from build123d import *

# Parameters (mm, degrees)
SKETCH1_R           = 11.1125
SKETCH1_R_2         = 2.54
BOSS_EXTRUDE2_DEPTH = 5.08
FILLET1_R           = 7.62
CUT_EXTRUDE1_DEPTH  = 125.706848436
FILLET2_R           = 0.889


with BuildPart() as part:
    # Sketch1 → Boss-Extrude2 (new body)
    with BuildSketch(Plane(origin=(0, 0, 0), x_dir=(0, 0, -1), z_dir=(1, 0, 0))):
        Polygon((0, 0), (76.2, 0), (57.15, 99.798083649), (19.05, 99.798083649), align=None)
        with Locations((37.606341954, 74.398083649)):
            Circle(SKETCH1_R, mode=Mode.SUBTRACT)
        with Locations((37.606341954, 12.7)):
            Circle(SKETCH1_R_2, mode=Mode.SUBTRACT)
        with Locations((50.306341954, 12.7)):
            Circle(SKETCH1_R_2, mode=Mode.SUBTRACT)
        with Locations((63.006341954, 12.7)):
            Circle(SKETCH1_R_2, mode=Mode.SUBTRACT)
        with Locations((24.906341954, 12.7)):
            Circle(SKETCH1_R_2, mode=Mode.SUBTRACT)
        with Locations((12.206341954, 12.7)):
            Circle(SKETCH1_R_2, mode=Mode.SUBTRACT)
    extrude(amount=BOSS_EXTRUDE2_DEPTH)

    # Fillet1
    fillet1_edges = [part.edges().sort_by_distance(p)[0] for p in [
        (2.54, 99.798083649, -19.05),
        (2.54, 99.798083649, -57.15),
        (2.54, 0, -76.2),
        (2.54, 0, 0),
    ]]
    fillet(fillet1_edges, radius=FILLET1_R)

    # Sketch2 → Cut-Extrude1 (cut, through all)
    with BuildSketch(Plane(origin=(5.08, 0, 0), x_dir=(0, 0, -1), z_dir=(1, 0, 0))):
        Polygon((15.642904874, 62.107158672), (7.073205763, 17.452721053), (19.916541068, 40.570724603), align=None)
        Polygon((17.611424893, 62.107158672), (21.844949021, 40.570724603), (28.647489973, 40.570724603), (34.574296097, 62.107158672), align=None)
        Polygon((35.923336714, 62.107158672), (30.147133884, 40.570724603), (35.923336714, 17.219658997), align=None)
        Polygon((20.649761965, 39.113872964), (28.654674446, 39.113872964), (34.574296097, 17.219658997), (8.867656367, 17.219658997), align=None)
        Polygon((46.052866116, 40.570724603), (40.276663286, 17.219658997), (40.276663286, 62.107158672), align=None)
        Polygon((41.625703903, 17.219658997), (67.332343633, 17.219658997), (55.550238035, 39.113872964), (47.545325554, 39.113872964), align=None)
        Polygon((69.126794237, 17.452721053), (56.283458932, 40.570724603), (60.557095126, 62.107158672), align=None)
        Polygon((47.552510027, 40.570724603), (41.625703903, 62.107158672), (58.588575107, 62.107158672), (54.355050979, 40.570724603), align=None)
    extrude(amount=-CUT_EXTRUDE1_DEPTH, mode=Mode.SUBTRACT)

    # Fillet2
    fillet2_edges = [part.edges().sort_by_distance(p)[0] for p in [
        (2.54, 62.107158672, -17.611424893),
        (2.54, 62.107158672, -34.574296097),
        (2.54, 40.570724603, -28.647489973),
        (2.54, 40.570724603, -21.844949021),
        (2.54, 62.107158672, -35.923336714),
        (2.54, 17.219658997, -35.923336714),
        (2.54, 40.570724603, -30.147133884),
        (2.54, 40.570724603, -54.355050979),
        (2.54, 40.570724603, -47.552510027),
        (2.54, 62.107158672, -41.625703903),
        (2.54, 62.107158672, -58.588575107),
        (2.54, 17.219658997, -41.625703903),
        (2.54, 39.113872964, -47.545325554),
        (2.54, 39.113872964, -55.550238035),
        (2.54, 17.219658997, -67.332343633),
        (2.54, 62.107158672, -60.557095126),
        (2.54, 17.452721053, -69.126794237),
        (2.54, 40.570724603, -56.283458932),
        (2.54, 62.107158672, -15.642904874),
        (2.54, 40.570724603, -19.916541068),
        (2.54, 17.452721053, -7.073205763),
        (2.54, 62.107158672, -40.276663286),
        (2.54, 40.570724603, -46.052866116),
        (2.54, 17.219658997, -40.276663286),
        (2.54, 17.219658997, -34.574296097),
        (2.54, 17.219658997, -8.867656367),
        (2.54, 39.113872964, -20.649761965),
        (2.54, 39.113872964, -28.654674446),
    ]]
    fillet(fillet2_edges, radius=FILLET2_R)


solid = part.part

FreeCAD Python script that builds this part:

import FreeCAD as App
import Part
import Sketcher
from FreeCAD import Vector
Q = App.Units.Quantity


def edges_at(feature, points):
    """Names of the edges that pass closest to the given points."""
    edges = feature.Shape.Edges
    near = lambda p: min(range(len(edges)), key=lambda i: edges[i].distToShape(Part.Vertex(*p))[0])
    return sorted({f"Edge{near(p) + 1}" for p in points})


def add_polygon(sketch, points):
    """Adds a closed chain of lines whose ends are joined by coincident constraints."""
    first, n = sketch.GeometryCount, len(points)
    for a, b in zip(points, points[1:] + points[:1]):
        sketch.addGeometry(Part.LineSegment(App.Vector(*a, 0), App.Vector(*b, 0)), False)
    for i in range(n):
        sketch.addConstraint(Sketcher.Constraint("Coincident", first + i, 2, first + (i + 1) % n, 1))

doc = App.newDocument("Part")
body = doc.addObject("PartDesign::Body", "Body")

# Sketch on YZ plane
sketch1 = doc.addObject("Sketcher::SketchObject", "Sketch")
body.addObject(sketch1)
sketch1.AttachmentSupport = (doc.YZ_Plane, [""])
sketch1.MapMode = "FlatFace"
add_polygon(sketch1, [(0, 0), (0, -76.2), (99.8, -57.1), (99.8, -19.1)])  # lines 0-3
sketch1.addGeometry(Part.Circle(Vector(12.7, -12.2, 0), Vector(0, 0, 1), 2.5), False)  # 4
sketch1.addGeometry(Part.Circle(Vector(12.7, -24.9, 0), Vector(0, 0, 1), 2.5), False)  # 5
sketch1.addGeometry(Part.Circle(Vector(12.7, -37.6, 0), Vector(0, 0, 1), 2.5), False)  # 6
sketch1.addGeometry(Part.Circle(Vector(12.7, -50.3, 0), Vector(0, 0, 1), 2.5), False)  # 7
sketch1.addGeometry(Part.Circle(Vector(12.7, -63, 0), Vector(0, 0, 1), 2.5), False)  # 8
sketch1.addGeometry(Part.Circle(Vector(74.4, -37.6, 0), Vector(0, 0, 1), 11.1), False)  # 9
sketch1.addConstraint([
    Sketcher.Constraint("Vertical", 0),
    Sketcher.Constraint("Vertical", 2),
    Sketcher.Constraint("Coincident", 3, 2, -1, 1),
    Sketcher.Constraint("Equal", 4, 5),
    Sketcher.Constraint("Equal", 5, 6),
    Sketcher.Constraint("Equal", 6, 7),
    Sketcher.Constraint("Equal", 7, 8),
    Sketcher.Constraint("Horizontal", 6, 3, 9, 3),
    Sketcher.Constraint("Vertical", 4, 3, 5, 3),
    Sketcher.Constraint("Vertical", 5, 3, 6, 3),
    Sketcher.Constraint("Vertical", 6, 3, 7, 3),
    Sketcher.Constraint("Vertical", 7, 3, 8, 3),
    Sketcher.Constraint("Equal", 1, 3),
    Sketcher.Constraint("Diameter", 4, Q("0.2 in")),
    Sketcher.Constraint("DistanceY", 0, 2, 0, 1, Q("3 in")),
    Sketcher.Constraint("Distance", 1, Q("4 in")),
    Sketcher.Constraint("Diameter", 9, Q("0.875 in")),
    Sketcher.Constraint("DistanceY", 2, 1, 2, 2, Q("1.5 in")),
    Sketcher.Constraint("DistanceY", 6, 3, 4, 3, Q("1 in")),
    Sketcher.Constraint("DistanceY", 7, 3, 5, 3, Q("1 in")),
    Sketcher.Constraint("DistanceY", 8, 3, 6, 3, Q("1 in")),
    Sketcher.Constraint("DistanceX", 9, 3, 1, 2, Q("1 in")),
    Sketcher.Constraint("DistanceX", -1, 1, 4, 3, Q("0.5 in")),
    Sketcher.Constraint("DistanceY", 5, 3, 4, 3, Q("0.5 in")),
    Sketcher.Constraint("DistanceY", 4, 3, -1, 1, Q("12.206342 mm")),
])
pad1 = doc.addObject("PartDesign::Pad", "Pad")
body.addObject(pad1)
pad1.Profile = sketch1
pad1.Length = Q("0.2 in")
doc.recompute()

fillet = doc.addObject("PartDesign::Fillet", "Fillet")
body.addObject(fillet)
fillet.Base = (pad1, edges_at(pad1, [
    (2.54, 99.798, -19.05),
    (2.54, 99.798, -57.15),
    (2.54, 0, -76.2),
    (2.54, 0, 0),
]))
fillet.Radius = Q("0.3 in")

# Sketch on YZ plane
sketch2 = doc.addObject("Sketcher::SketchObject", "Sketch001")
body.addObject(sketch2)
sketch2.AttachmentSupport = (doc.YZ_Plane, [""])
sketch2.MapMode = "FlatFace"
sketch2.AttachmentOffset = App.Placement(Vector(0, 0, 0.2 * 25.4), App.Rotation())
add_polygon(sketch2, [(62, -16), (17, -7), (41, -20)])  # lines 0-2
add_polygon(sketch2, [(62, -18), (41, -22), (41, -29), (62, -35)])  # lines 3-6
add_polygon(sketch2, [(62, -36), (41, -30), (17, -36)])  # lines 7-9
add_polygon(sketch2, [(39, -29), (39, -21), (17, -9), (17, -35)])  # lines 10-13
add_polygon(sketch2, [(17, -40), (41, -46), (62, -40)])  # lines 14-16
add_polygon(sketch2, [(17, -42), (17, -67), (39, -56), (39, -48)])  # lines 17-20
add_polygon(sketch2, [(41, -56), (17, -69), (62, -61)])  # lines 21-23
add_polygon(sketch2, [(62, -42), (41, -48), (41, -54), (62, -59)])  # lines 24-27
sketch2.addConstraint([
    Sketcher.Constraint("Vertical", 4),
    Sketcher.Constraint("Vertical", 6),
    Sketcher.Constraint("Horizontal", 9),
    Sketcher.Constraint("Vertical", 10),
    Sketcher.Constraint("Vertical", 12),
    Sketcher.Constraint("Horizontal", 16),
    Sketcher.Constraint("Vertical", 17),
    Sketcher.Constraint("Vertical", 19),
    Sketcher.Constraint("Vertical", 25),
    Sketcher.Constraint("Vertical", 27),
    Sketcher.Constraint("Horizontal", 5, 2, 12, 2),
    Sketcher.Constraint("Horizontal", 20, 2, 27, 2),
    Sketcher.Constraint("Vertical", 1, 2, 3, 2),
    Sketcher.Constraint("Vertical", 2, 2, 5, 2),
    Sketcher.Constraint("Vertical", 4, 2, 7, 2),
    Sketcher.Constraint("Vertical", 6, 2, 9, 2),
    Sketcher.Constraint("Vertical", 8, 2, 11, 2),
    Sketcher.Constraint("Vertical", 7, 2, 14, 2),
    Sketcher.Constraint("Vertical", 9, 2, 15, 2),
    Sketcher.Constraint("Vertical", 12, 2, 16, 2),
    Sketcher.Constraint("Vertical", 16, 2, 17, 2),
    Sketcher.Constraint("Vertical", 13, 2, 18, 2),
    Sketcher.Constraint("Vertical", 0, 2, 21, 2),
    Sketcher.Constraint("Vertical", 15, 2, 22, 2),
    Sketcher.Constraint("Vertical", 14, 2, 23, 2),
    Sketcher.Constraint("Vertical", 23, 2, 24, 2),
    Sketcher.Constraint("Vertical", 22, 2, 26, 2),
    Sketcher.Constraint("Equal", 12, 17),
    Sketcher.Constraint("Equal", 10, 19),
    Sketcher.Constraint("Equal", 4, 25),
    Sketcher.Constraint("Equal", 6, 27),
    Sketcher.Constraint("Equal", 8, 14),
    Sketcher.Constraint("Equal", 11, 18),
    Sketcher.Constraint("Equal", 1, 21),
    Sketcher.Constraint("Equal", 0, 22),
    Sketcher.Constraint("Equal", 5, 24),
    Sketcher.Constraint("DistanceX", 9, 1, 9, 2, Q("44.8875 mm")),
    Sketcher.Constraint("DistanceY", 4, 2, 4, 1, Q("6.802541 mm")),
    Sketcher.Constraint("DistanceY", 6, 1, 6, 2, Q("16.962871 mm")),
    Sketcher.Constraint("DistanceY", 12, 2, 12, 1, Q("25.70664 mm")),
    Sketcher.Constraint("DistanceY", 2, 2, 0, 2, Q("8.569699 mm")),
    Sketcher.Constraint("DistanceY", 22, 2, 5, 2, Q("25.982799 mm")),
    Sketcher.Constraint("Distance", 7, Q("22.29759 mm")),
    Sketcher.Constraint("Distance", 8, Q("24.05487 mm")),
    Sketcher.Constraint("DistanceY", 10, 1, 10, 2, Q("8.004912 mm")),
    Sketcher.Constraint("DistanceX", -1, 1, 0, 2, Q("17.452721 mm")),
    Sketcher.Constraint("DistanceY", 1, 2, -1, 1, Q("19.916541 mm")),
    Sketcher.Constraint("DistanceX", -1, 1, 2, 2, Q("62.107159 mm")),
    Sketcher.Constraint("DistanceY", 3, 2, -1, 1, Q("21.844949 mm")),
    Sketcher.Constraint("DistanceY", 10, 2, -1, 1, Q("20.649762 mm")),
    Sketcher.Constraint("DistanceY", 18, 2, -1, 1, Q("55.550238 mm")),
    Sketcher.Constraint("DistanceY", 23, 2, -1, 1, Q("56.283459 mm")),
    Sketcher.Constraint("DistanceY", 5, 2, 2, 2, Q("18.931391 mm")),
    Sketcher.Constraint("DistanceY", 7, 2, 6, 2, Q("12.535709 mm")),
    Sketcher.Constraint("DistanceX", 10, 2, 1, 2, Q("1.456852 mm")),
    Sketcher.Constraint("DistanceY", 14, 2, 13, 2, Q("17.398192 mm")),
])
pocket1 = doc.addObject("PartDesign::Pocket", "Pocket")
body.addObject(pocket1)
pocket1.Profile = sketch2
pocket1.Type = "ThroughAll"
doc.recompute()

fillet2 = doc.addObject("PartDesign::Fillet", "Fillet001")
body.addObject(fillet2)
fillet2.Base = (pocket1, edges_at(pocket1, [
    (2.54, 62.107, -17.611),
    (2.54, 62.107, -34.574),
    (2.54, 40.571, -28.647),
    (2.54, 40.571, -21.845),
    (2.54, 62.107, -35.923),
    (2.54, 17.22, -35.923),
    (2.54, 40.571, -30.147),
    (2.54, 40.571, -54.355),
    (2.54, 40.571, -47.553),
    (2.54, 62.107, -41.626),
    (2.54, 62.107, -58.589),
    (2.54, 17.22, -41.626),
    (2.54, 39.114, -47.545),
    (2.54, 39.114, -55.55),
    (2.54, 17.22, -67.332),
    (2.54, 62.107, -60.557),
    (2.54, 17.453, -69.127),
    (2.54, 40.571, -56.283),
    (2.54, 62.107, -15.643),
    (2.54, 40.571, -19.917),
    (2.54, 17.453, -7.073),
    (2.54, 62.107, -40.277),
    (2.54, 40.571, -46.053),
    (2.54, 17.22, -40.277),
    (2.54, 17.22, -34.574),
    (2.54, 17.22, -8.868),
    (2.54, 39.114, -20.65),
    (2.54, 39.114, -28.655),
]))
fillet2.Radius = Q("0.035 in")

doc.recompute()
